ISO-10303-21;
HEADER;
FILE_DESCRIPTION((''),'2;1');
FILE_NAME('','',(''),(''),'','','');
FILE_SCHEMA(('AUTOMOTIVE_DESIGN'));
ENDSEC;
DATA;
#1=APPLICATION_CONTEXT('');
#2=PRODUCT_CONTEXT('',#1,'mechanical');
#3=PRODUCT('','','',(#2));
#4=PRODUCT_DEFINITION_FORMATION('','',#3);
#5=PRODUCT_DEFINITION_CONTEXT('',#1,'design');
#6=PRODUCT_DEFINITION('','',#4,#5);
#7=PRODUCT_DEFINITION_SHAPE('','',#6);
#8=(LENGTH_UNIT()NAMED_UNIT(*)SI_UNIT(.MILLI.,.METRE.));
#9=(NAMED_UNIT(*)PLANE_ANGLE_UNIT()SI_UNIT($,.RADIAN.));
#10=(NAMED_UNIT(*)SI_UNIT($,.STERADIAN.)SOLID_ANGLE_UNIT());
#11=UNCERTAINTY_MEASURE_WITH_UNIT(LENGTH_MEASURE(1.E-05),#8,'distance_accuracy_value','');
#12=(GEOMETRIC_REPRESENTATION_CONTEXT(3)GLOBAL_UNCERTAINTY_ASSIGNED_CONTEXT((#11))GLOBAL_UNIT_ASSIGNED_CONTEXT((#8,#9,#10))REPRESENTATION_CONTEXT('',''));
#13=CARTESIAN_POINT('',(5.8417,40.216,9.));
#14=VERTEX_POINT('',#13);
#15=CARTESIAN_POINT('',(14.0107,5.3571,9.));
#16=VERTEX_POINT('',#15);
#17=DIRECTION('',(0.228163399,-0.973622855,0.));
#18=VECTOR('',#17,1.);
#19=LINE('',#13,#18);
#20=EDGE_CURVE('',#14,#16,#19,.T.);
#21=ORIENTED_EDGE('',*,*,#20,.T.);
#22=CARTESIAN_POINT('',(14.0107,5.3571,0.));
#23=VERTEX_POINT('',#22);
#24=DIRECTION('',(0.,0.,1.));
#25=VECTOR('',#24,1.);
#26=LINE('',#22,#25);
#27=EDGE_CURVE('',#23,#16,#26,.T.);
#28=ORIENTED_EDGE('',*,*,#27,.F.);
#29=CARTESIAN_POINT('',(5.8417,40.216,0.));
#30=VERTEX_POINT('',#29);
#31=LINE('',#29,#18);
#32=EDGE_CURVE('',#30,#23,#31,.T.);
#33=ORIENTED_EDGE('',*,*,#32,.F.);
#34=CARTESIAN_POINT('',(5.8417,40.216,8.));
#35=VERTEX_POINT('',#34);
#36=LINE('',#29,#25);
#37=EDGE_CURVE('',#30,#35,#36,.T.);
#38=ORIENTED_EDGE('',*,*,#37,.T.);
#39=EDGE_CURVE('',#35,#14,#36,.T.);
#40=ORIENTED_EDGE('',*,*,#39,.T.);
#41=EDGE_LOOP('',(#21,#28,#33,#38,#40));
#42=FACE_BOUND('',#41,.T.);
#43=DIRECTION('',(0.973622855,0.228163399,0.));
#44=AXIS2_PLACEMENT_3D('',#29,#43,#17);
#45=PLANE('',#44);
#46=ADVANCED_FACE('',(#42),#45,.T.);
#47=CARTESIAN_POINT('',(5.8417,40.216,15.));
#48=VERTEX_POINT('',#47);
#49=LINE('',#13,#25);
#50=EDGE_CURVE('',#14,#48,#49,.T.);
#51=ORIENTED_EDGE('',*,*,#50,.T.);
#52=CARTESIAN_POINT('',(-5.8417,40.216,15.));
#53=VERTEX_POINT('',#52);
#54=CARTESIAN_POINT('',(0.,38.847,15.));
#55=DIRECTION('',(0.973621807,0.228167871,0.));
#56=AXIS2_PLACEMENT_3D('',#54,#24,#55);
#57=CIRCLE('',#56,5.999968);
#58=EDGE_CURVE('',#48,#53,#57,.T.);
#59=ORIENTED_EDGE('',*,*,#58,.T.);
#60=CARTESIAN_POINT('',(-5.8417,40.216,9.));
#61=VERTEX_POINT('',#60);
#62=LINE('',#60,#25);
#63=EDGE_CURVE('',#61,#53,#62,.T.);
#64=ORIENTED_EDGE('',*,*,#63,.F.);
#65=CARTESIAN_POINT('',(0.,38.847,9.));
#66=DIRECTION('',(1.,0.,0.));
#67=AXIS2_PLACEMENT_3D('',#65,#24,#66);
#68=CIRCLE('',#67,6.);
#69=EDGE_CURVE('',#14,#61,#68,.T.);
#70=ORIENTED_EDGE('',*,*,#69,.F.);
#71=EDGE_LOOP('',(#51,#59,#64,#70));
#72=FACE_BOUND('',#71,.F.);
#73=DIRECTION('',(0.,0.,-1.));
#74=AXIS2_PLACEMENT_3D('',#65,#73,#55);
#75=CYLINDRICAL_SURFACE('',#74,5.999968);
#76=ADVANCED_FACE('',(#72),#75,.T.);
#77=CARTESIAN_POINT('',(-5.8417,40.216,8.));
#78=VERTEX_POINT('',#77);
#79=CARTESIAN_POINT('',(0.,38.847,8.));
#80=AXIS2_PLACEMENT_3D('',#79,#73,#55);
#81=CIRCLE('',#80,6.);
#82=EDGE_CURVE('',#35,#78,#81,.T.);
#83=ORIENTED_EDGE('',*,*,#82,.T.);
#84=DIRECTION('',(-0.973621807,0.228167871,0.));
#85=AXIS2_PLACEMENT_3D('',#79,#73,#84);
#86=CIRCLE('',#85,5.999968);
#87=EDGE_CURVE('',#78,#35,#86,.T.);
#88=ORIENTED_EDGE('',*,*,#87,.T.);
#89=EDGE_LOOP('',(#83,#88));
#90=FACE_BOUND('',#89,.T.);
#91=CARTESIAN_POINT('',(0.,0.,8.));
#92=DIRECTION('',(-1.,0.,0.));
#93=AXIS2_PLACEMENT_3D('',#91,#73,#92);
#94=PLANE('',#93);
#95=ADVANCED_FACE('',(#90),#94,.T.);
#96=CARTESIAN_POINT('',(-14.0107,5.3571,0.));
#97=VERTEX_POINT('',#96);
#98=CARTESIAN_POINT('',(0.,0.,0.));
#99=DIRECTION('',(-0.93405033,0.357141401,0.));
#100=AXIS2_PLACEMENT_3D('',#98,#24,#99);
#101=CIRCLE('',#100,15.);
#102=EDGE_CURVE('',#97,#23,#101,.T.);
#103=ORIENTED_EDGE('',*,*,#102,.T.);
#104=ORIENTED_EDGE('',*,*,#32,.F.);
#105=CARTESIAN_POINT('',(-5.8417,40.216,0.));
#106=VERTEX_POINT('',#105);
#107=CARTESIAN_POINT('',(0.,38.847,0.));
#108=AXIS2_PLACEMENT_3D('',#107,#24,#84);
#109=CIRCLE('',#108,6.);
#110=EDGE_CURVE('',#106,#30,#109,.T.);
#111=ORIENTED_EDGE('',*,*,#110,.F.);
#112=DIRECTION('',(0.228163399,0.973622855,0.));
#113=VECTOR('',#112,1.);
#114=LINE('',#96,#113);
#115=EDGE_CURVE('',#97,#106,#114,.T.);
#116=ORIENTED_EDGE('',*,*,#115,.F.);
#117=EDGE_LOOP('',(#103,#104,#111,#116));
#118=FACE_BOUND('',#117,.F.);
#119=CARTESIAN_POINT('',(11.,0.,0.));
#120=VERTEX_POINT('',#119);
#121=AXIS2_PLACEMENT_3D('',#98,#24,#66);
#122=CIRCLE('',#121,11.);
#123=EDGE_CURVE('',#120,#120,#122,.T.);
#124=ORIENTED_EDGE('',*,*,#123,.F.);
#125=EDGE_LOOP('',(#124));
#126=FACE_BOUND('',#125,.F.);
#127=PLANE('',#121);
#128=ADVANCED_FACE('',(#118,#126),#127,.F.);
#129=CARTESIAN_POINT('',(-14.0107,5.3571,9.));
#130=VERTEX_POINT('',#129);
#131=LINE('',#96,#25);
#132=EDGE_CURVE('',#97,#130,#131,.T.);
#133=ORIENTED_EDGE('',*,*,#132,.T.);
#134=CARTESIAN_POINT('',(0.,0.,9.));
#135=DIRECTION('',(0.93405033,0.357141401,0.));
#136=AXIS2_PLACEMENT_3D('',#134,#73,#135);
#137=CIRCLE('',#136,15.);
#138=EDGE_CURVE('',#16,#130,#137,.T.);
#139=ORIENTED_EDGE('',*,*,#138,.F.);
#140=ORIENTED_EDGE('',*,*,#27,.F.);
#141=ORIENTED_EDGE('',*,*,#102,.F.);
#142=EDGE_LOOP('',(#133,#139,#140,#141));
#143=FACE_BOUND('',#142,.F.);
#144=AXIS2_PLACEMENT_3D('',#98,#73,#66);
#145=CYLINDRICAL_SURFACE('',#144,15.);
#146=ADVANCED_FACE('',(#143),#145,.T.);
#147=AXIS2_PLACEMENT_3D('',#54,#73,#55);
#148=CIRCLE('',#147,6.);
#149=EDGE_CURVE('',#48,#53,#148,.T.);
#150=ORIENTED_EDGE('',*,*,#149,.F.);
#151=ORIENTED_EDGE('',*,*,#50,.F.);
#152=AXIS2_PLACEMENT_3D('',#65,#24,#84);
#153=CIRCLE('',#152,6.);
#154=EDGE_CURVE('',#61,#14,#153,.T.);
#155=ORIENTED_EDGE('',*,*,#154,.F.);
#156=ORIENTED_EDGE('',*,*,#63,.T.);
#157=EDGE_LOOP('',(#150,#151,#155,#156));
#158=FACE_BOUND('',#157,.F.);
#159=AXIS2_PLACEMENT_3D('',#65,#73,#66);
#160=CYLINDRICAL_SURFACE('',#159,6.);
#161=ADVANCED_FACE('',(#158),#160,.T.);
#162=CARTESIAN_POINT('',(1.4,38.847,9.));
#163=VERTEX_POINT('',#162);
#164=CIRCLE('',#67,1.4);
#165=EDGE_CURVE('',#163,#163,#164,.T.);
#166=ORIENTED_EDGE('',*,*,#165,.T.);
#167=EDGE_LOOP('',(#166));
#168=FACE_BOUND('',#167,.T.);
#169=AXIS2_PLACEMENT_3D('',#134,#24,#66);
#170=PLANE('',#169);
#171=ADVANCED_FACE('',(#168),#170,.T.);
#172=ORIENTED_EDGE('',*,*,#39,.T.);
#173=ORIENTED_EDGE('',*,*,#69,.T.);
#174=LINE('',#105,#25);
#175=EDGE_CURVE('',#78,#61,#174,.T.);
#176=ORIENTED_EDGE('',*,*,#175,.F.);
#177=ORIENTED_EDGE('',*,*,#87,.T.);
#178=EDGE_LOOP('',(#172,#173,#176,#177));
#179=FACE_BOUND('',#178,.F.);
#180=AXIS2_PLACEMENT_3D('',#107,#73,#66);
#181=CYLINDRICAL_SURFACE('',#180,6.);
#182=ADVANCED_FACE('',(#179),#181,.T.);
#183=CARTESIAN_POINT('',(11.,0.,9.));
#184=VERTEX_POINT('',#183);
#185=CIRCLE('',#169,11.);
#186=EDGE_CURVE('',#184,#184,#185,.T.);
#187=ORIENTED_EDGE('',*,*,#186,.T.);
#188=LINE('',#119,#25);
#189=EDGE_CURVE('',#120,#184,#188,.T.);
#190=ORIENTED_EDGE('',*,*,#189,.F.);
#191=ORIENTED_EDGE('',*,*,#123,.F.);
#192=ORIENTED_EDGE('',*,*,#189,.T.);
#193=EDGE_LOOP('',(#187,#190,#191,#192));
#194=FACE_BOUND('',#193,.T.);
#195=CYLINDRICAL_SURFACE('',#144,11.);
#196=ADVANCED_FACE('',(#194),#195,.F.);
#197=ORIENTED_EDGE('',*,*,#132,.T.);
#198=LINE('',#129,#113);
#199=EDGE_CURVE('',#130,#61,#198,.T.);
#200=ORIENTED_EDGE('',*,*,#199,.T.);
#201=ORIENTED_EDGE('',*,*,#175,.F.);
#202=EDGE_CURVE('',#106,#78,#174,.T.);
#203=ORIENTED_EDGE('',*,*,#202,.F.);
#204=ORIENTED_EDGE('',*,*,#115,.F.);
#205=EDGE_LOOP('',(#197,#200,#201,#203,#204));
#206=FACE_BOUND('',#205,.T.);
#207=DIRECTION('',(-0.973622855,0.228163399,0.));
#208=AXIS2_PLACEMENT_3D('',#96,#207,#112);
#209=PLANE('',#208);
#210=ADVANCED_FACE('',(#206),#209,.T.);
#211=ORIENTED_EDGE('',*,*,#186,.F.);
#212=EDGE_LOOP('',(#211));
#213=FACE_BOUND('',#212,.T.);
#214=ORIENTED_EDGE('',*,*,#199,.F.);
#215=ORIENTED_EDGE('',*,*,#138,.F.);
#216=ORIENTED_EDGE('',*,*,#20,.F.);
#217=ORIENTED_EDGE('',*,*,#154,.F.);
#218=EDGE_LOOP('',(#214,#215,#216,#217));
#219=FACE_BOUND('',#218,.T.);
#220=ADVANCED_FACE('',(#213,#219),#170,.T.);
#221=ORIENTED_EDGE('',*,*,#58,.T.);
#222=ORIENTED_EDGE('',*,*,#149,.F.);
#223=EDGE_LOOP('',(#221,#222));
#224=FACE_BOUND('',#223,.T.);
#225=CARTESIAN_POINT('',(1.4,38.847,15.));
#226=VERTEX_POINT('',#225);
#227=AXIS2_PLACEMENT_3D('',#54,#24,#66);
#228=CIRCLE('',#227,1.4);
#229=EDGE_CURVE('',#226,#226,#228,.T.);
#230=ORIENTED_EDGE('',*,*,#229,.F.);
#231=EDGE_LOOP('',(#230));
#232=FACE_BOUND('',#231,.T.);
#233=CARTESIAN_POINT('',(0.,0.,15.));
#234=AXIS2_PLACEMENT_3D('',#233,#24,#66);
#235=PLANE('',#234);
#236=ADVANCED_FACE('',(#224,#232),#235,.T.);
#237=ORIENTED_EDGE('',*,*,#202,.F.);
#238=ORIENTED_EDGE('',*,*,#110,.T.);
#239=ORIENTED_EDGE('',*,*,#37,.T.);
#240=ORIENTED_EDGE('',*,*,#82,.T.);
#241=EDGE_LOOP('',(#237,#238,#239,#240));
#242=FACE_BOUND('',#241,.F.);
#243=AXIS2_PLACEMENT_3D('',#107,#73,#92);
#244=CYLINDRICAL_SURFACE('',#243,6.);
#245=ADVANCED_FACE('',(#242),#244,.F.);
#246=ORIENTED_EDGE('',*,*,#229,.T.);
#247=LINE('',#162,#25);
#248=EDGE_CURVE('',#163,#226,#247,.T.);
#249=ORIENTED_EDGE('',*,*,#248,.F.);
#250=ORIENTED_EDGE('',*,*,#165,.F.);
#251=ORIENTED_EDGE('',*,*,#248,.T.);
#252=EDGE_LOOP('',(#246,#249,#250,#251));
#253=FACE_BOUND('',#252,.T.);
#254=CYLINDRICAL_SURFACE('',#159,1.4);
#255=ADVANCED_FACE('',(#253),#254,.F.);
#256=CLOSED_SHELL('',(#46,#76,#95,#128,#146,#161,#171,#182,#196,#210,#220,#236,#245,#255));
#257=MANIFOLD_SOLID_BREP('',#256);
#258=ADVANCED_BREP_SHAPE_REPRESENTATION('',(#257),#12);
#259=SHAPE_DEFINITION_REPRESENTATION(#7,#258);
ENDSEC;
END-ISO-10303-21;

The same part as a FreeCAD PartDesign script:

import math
import FreeCAD as App
import Part
import Sketcher
from FreeCAD import Vector
Q = App.Units.Quantity

doc = App.newDocument("Part")
params = doc.addObject("Spreadsheet::Sheet", "Params")
for row, (alias, value) in enumerate([
    ("sketch1_diameter", "22 mm"),
    ("sketch1_radius", "15 mm"),
    ("sketch1_radius2", "6 mm"),
    ("pad1_length", "9 mm"),
    ("sketch2_diameter", "12 mm"),
    ("sketch2_diameter2", "2.8 mm"),
    ("pad2_length", "6 mm"),
    ("sketch3_diameter", "12 mm"),
    ("pocket1_length", "8 mm"),
], start=1):
    params.set(f"A{row}", alias)
    params.set(f"B{row}", "=" + value)
    params.setAlias(f"B{row}", alias)

body = doc.addObject("PartDesign::Body", "Body")

sketch1 = doc.addObject("Sketcher::SketchObject", "Sketch")
body.addObject(sketch1)
sketch1.AttachmentSupport = (doc.XY_Plane, [""])
sketch1.MapMode = "FlatFace"
sketch1.addGeometry(Part.ArcOfCircle(Part.Circle(Vector(0, 0, 0), Vector(0, 0, 1), 15), math.radians(159.075257), math.radians(380.924743)), False)
sketch1.addGeometry(Part.LineSegment(Vector(14.0107, 5.3571, 0), Vector(5.8417, 40.216, 0)), False)
sketch1.addGeometry(Part.ArcOfCircle(Part.Circle(Vector(0, 38.847, 0), Vector(0, 0, 1), 6), math.radians(13.189231), math.radians(166.810769)), False)
sketch1.addGeometry(Part.LineSegment(Vector(-5.8417, 40.216, 0), Vector(-14.0107, 5.3571, 0)), False)
sketch1.addGeometry(Part.Circle(Vector(0, 0, 0), Vector(0, 0, 1), 11), False)
sketch1.addConstraint(Sketcher.Constraint("Coincident", 0, 2, 1, 1))
sketch1.addConstraint(Sketcher.Constraint("Tangent", 1, 2, 2, 1))
sketch1.addConstraint(Sketcher.Constraint("Tangent", 2, 2, 3, 1))
sketch1.addConstraint(Sketcher.Constraint("Coincident", 3, 2, 0, 1))
sketch1.addConstraint(Sketcher.Constraint("Coincident", 0, 3, -1, 1))
sketch1.addConstraint(Sketcher.Constraint("Coincident", 4, 3, -1, 1))
sketch1.addConstraint(Sketcher.Constraint("Symmetric", 1, 2, 2, 2, -2))
sketch1.addConstraint(Sketcher.Constraint("Diameter", 4, Q("22 mm")))
sketch1.addConstraint(Sketcher.Constraint("Radius", 0, Q("15 mm")))
sketch1.addConstraint(Sketcher.Constraint("Radius", 2, Q("6 mm")))
sketch1.addConstraint(Sketcher.Constraint("DistanceY", -1, 1, 2, 3, Q("38.847 mm")))
sketch1.addConstraint(Sketcher.Constraint("Angle", 1, Q("103.189 deg")))
sketch1.setExpression("Constraints[7]", "Params.sketch1_diameter")
sketch1.setExpression("Constraints[8]", "Params.sketch1_radius")
sketch1.setExpression("Constraints[9]", "Params.sketch1_radius2")
pad1 = doc.addObject("PartDesign::Pad", "Pad")
body.addObject(pad1)
pad1.Profile = sketch1
pad1.setExpression("Length", "Params.pad1_length")

sketch2 = doc.addObject("Sketcher::SketchObject", "Sketch001")
body.addObject(sketch2)
sketch2.AttachmentSupport = (doc.XY_Plane, [""])
sketch2.MapMode = "FlatFace"
sketch2.AttachmentOffset = App.Placement(Vector(0, 0, 9), App.Rotation())
sketch2.addGeometry(Part.Circle(Vector(0, 38.847, 0), Vector(0, 0, 1), 6), False)
sketch2.addGeometry(Part.Circle(Vector(0, 38.847, 0), Vector(0, 0, 1), 1.4), False)
sketch2.addConstraint(Sketcher.Constraint("Coincident", 1, 3, 0, 3))
sketch2.addConstraint(Sketcher.Constraint("PointOnObject", 0, 3, -2))
sketch2.addConstraint(Sketcher.Constraint("Diameter", 0, Q("12 mm")))
sketch2.addConstraint(Sketcher.Constraint("Diameter", 1, Q("2.8 mm")))
sketch2.addConstraint(Sketcher.Constraint("DistanceY", -1, 1, 0, 3, Q("38.847 mm")))
sketch2.setExpression("Constraints[2]", "Params.sketch2_diameter")
sketch2.setExpression("Constraints[3]", "Params.sketch2_diameter2")
pad2 = doc.addObject("PartDesign::Pad", "Pad001")
body.addObject(pad2)
pad2.Profile = sketch2
pad2.setExpression("Length", "Params.pad2_length")

sketch3 = doc.addObject("Sketcher::SketchObject", "Sketch002")
body.addObject(sketch3)
sketch3.AttachmentSupport = (doc.XY_Plane, [""])
sketch3.MapMode = "FlatFace"
sketch3.addGeometry(Part.Circle(Vector(0, 38.847, 0), Vector(0, 0, 1), 5.999968), False)
sketch3.addConstraint(Sketcher.Constraint("PointOnObject", 0, 3, -2))
sketch3.addConstraint(Sketcher.Constraint("Diameter", 0, Q("12 mm")))
sketch3.addConstraint(Sketcher.Constraint("DistanceY", -1, 1, 0, 3, Q("38.847 mm")))
sketch3.setExpression("Constraints[1]", "Params.sketch3_diameter")
pocket1 = doc.addObject("PartDesign::Pocket", "Pocket")
body.addObject(pocket1)
pocket1.Profile = sketch3
pocket1.setExpression("Length", "Params.pocket1_length")
pocket1.Reversed = True

doc.recompute()
